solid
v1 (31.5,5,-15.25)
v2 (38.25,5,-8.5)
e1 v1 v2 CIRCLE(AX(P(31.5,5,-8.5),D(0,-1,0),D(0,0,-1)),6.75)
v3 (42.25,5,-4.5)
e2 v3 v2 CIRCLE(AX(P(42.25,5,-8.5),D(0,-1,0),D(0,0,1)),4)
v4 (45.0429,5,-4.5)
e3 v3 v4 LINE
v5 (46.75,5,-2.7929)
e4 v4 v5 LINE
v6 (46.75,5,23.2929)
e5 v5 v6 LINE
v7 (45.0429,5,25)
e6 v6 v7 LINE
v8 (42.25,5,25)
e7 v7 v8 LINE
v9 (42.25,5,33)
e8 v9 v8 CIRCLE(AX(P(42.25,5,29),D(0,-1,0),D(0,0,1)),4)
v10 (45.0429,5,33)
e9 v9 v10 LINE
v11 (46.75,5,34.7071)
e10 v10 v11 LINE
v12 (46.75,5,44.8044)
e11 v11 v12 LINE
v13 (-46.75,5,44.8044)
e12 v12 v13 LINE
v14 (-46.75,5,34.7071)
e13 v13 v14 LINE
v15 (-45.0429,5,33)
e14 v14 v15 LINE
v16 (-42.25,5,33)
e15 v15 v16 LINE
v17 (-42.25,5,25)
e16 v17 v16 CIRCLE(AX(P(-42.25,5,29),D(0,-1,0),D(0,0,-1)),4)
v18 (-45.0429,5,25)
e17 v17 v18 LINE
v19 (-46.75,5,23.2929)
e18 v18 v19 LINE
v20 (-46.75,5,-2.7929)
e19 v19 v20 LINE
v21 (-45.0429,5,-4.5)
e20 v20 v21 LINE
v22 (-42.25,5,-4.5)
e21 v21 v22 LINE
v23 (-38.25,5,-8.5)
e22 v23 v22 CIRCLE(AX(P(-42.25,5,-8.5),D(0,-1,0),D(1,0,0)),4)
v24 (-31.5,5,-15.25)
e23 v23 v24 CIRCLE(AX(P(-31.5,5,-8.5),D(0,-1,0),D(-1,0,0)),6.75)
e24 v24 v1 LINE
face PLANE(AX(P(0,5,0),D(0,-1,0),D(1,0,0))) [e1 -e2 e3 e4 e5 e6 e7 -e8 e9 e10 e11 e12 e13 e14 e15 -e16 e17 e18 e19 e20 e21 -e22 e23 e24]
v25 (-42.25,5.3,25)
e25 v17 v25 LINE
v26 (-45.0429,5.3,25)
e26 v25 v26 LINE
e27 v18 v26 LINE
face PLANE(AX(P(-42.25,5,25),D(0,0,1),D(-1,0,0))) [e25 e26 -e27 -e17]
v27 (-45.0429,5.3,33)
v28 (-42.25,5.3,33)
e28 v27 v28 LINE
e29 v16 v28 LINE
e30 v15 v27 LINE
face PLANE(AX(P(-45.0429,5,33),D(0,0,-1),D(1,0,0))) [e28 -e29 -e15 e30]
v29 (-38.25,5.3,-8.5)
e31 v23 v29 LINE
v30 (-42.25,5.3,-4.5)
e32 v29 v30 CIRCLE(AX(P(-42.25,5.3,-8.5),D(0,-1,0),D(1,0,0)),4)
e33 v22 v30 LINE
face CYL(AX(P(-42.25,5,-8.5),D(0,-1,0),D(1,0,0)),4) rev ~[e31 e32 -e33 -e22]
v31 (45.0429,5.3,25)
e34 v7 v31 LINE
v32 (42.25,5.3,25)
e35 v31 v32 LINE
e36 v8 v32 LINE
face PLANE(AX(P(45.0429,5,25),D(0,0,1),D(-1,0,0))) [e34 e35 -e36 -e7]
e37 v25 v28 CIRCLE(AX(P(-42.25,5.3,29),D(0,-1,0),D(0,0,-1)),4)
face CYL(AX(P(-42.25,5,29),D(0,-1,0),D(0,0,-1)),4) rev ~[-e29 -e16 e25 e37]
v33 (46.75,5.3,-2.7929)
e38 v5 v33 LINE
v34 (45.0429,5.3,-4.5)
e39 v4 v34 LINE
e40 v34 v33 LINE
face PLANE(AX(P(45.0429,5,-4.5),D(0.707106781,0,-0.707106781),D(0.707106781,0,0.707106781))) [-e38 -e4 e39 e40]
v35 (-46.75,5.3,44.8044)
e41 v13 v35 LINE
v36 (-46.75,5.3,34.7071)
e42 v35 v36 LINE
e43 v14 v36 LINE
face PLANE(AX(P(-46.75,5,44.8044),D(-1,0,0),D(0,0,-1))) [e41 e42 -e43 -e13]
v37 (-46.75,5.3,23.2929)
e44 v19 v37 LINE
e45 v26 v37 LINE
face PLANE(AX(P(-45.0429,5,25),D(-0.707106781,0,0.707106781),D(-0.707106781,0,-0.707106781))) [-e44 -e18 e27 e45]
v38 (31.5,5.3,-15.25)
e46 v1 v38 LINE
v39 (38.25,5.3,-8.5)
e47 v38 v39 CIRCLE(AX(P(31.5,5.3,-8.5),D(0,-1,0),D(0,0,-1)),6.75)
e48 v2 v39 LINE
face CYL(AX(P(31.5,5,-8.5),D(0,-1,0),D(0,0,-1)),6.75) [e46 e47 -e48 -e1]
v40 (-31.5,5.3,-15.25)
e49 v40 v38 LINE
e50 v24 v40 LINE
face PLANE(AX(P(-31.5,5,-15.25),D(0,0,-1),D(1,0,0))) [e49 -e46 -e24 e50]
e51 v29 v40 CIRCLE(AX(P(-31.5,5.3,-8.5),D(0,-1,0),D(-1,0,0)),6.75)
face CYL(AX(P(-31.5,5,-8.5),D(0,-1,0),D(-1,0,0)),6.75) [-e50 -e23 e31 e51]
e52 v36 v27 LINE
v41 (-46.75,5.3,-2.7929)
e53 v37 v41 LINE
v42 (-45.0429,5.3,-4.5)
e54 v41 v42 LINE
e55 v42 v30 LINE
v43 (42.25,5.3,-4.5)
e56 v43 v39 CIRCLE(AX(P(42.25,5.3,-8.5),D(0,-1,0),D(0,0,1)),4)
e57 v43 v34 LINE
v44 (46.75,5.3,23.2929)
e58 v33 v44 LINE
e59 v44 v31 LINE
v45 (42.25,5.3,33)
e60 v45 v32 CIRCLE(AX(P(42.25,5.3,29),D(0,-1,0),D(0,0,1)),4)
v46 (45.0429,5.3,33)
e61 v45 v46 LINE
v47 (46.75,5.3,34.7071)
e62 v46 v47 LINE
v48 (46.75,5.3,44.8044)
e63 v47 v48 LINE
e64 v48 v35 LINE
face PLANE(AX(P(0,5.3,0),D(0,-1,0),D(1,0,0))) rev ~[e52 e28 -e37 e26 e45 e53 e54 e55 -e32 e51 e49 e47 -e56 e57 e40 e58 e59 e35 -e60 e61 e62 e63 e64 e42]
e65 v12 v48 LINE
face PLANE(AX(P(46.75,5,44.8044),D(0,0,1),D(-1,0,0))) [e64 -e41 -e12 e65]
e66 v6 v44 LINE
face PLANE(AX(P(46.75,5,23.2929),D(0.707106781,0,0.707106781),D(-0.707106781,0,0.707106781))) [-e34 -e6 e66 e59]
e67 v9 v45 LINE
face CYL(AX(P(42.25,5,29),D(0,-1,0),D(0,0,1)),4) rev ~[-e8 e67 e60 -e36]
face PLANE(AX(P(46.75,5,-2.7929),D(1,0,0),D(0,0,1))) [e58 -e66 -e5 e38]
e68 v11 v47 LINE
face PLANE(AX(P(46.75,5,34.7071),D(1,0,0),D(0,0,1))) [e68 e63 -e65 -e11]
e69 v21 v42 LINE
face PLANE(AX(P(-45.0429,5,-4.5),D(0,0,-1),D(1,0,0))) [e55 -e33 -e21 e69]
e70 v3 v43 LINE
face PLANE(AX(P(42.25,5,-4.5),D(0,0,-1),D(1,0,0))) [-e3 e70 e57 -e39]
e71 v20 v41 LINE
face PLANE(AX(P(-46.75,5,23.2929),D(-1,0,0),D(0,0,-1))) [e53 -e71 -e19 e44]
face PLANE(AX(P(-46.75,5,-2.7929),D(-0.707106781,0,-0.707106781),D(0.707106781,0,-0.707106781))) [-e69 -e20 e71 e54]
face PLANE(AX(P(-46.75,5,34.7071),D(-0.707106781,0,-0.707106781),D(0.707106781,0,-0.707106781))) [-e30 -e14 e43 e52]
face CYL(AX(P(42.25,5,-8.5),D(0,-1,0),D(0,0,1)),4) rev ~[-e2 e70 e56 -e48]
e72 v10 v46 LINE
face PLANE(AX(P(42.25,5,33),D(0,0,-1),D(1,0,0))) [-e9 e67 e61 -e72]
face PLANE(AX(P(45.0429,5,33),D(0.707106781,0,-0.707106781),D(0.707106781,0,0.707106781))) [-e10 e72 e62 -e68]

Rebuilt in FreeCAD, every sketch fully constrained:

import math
import FreeCAD as App
import Part
import Sketcher
from FreeCAD import Vector
Q = App.Units.Quantity

doc = App.newDocument("Part")
body = doc.addObject("PartDesign::Body", "Body")

sketch1 = body.newObject("Sketcher::SketchObject", "Sketch")
sketch1.AttachmentSupport = (doc.getObject("XZ_Plane"), [""])
sketch1.MapMode = "FlatFace"
sketch1.AttachmentOffset = App.Placement(Vector(0, 0, -5), App.Rotation())
sketch1.addGeometry([
    Part.ArcOfCircle(Part.Circle(Vector(-31.5, -8.5, 0), Vector(0, 0, 1), 6.8), math.radians(180), math.radians(270)),
    Part.LineSegment(Vector(-31.5, -15.2, 0), Vector(31.5, -15.2, 0)),
    Part.ArcOfCircle(Part.Circle(Vector(31.5, -8.5, 0), Vector(0, 0, 1), 6.8), math.radians(-90), math.radians(0)),
    Part.ArcOfCircle(Part.Circle(Vector(42.2, -8.5, 0), Vector(0, 0, 1), 4), math.radians(90), math.radians(180)),
    Part.LineSegment(Vector(42.2, -4.5, 0), Vector(45, -4.5, 0)),
    Part.LineSegment(Vector(45, -4.5, 0), Vector(46.8, -2.8, 0)),
    Part.LineSegment(Vector(46.8, -2.8, 0), Vector(46.8, 23.3, 0)),
    Part.LineSegment(Vector(46.8, 23.3, 0), Vector(45, 25, 0)),
    Part.LineSegment(Vector(45, 25, 0), Vector(42.2, 25, 0)),
    Part.ArcOfCircle(Part.Circle(Vector(42.2, 29, 0), Vector(0, 0, 1), 4), math.radians(90), math.radians(270)),
    Part.LineSegment(Vector(42.2, 33, 0), Vector(45, 33, 0)),
    Part.LineSegment(Vector(45, 33, 0), Vector(46.8, 34.7, 0)),
    Part.LineSegment(Vector(46.8, 34.7, 0), Vector(46.8, 44.8, 0)),
    Part.LineSegment(Vector(46.8, 44.8, 0), Vector(-46.8, 44.8, 0)),
    Part.LineSegment(Vector(-46.8, 44.8, 0), Vector(-46.8, 34.7, 0)),
    Part.LineSegment(Vector(-46.8, 34.7, 0), Vector(-45, 33, 0)),
    Part.LineSegment(Vector(-45, 33, 0), Vector(-42.2, 33, 0)),
    Part.ArcOfCircle(Part.Circle(Vector(-42.2, 29, 0), Vector(0, 0, 1), 4), math.radians(-90), math.radians(90)),
    Part.LineSegment(Vector(-42.2, 25, 0), Vector(-45, 25, 0)),
    Part.LineSegment(Vector(-45, 25, 0), Vector(-46.8, 23.3, 0)),
    Part.LineSegment(Vector(-46.8, 23.3, 0), Vector(-46.8, -2.8, 0)),
    Part.LineSegment(Vector(-46.8, -2.8, 0), Vector(-45, -4.5, 0)),
    Part.LineSegment(Vector(-45, -4.5, 0), Vector(-42.2, -4.5, 0)),
    Part.ArcOfCircle(Part.Circle(Vector(-42.2, -8.5, 0), Vector(0, 0, 1), 4), math.radians(0), math.radians(90)),
], False)
sketch1.addConstraint([
    Sketcher.Constraint("Tangent", 0, 2, 1, 1),
    Sketcher.Constraint("Tangent", 1, 2, 2, 1),
    Sketcher.Constraint("Tangent", 2, 2, 3, 2),
    Sketcher.Constraint("Tangent", 3, 1, 4, 1),
    Sketcher.Constraint("Coincident", 4, 2, 5, 1),
    Sketcher.Constraint("Coincident", 5, 2, 6, 1),
    Sketcher.Constraint("Coincident", 6, 2, 7, 1),
    Sketcher.Constraint("Coincident", 7, 2, 8, 1),
    Sketcher.Constraint("Tangent", 8, 2, 9, 2),
    Sketcher.Constraint("Tangent", 9, 1, 10, 1),
    Sketcher.Constraint("Coincident", 10, 2, 11, 1),
    Sketcher.Constraint("Coincident", 11, 2, 12, 1),
    Sketcher.Constraint("Coincident", 12, 2, 13, 1),
    Sketcher.Constraint("Coincident", 13, 2, 14, 1),
    Sketcher.Constraint("Coincident", 14, 2, 15, 1),
    Sketcher.Constraint("Coincident", 15, 2, 16, 1),
    Sketcher.Constraint("Tangent", 16, 2, 17, 2),
    Sketcher.Constraint("Tangent", 17, 1, 18, 1),
    Sketcher.Constraint("Coincident", 18, 2, 19, 1),
    Sketcher.Constraint("Coincident", 19, 2, 20, 1),
    Sketcher.Constraint("Coincident", 20, 2, 21, 1),
    Sketcher.Constraint("Coincident", 21, 2, 22, 1),
    Sketcher.Constraint("Tangent", 22, 2, 23, 2),
    Sketcher.Constraint("Tangent", 23, 1, 0, 1),
    Sketcher.Constraint("Horizontal", 1),
    Sketcher.Constraint("Horizontal", 4),
    Sketcher.Constraint("Vertical", 6),
    Sketcher.Constraint("Horizontal", 8),
    Sketcher.Constraint("Horizontal", 10),
    Sketcher.Constraint("Vertical", 12),
    Sketcher.Constraint("Horizontal", 13),
    Sketcher.Constraint("Vertical", 14),
    Sketcher.Constraint("Horizontal", 16),
    Sketcher.Constraint("Horizontal", 18),
    Sketcher.Constraint("Vertical", 20),
    Sketcher.Constraint("Horizontal", 22),
    Sketcher.Constraint("Equal", 0, 2),
    Sketcher.Constraint("Equal", 3, 9),
    Sketcher.Constraint("Equal", 9, 17),
    Sketcher.Constraint("Equal", 17, 23),
    Sketcher.Constraint("Symmetric", 9, 3, 17, 3, -2),
    Sketcher.Constraint("Symmetric", 3, 3, 23, 3, -2),
    Sketcher.Constraint("Symmetric", 11, 2, 14, 2, -2),
    Sketcher.Constraint("Symmetric", 6, 2, 19, 2, -2),
    Sketcher.Constraint("Perpendicular", 5, 7),
    Sketcher.Constraint("Perpendicular", 7, 11),
    Sketcher.Constraint("Perpendicular", 11, 15),
    Sketcher.Constraint("Perpendicular", 15, 19),
    Sketcher.Constraint("Perpendicular", 19, 21),
    Sketcher.Constraint("Horizontal", 2, 3, 3, 3),
    Sketcher.Constraint("Horizontal", 5, 2, 20, 2),
    Sketcher.Constraint("Vertical", 3, 3, 9, 3),
    Sketcher.Constraint("Vertical", 4, 2, 7, 2),
    Sketcher.Constraint("Vertical", 7, 2, 10, 2),
    Sketcher.Constraint("Vertical", 6, 2, 11, 2),
    Sketcher.Constraint("Vertical", 15, 2, 18, 2),
    Sketcher.Constraint("Radius", 3, Q("4 mm")),
    Sketcher.Constraint("DistanceX", 1, 1, 1, 2, Q("63 mm")),
    Sketcher.Constraint("Radius", 0, Q("6.75 mm")),
    Sketcher.Constraint("DistanceX", 13, 2, 13, 1, Q("93.5 mm")),
    Sketcher.Constraint("DistanceY", -1, 1, 9, 3, Q("29 mm")),
    Sketcher.Constraint("DistanceY", 0, 3, -1, 1, Q("8.5 mm")),
    Sketcher.Constraint("DistanceX", 4, 1, 4, 2, Q("2.793 mm")),
    Sketcher.Constraint("DistanceY", 12, 1, 12, 2, Q("10.0973 mm")),
])
pad1 = body.newObject("PartDesign::Pad", "Pad")
pad1.Profile = sketch1
pad1.Length = 0.3
pad1.Reversed = True

doc.recompute()
